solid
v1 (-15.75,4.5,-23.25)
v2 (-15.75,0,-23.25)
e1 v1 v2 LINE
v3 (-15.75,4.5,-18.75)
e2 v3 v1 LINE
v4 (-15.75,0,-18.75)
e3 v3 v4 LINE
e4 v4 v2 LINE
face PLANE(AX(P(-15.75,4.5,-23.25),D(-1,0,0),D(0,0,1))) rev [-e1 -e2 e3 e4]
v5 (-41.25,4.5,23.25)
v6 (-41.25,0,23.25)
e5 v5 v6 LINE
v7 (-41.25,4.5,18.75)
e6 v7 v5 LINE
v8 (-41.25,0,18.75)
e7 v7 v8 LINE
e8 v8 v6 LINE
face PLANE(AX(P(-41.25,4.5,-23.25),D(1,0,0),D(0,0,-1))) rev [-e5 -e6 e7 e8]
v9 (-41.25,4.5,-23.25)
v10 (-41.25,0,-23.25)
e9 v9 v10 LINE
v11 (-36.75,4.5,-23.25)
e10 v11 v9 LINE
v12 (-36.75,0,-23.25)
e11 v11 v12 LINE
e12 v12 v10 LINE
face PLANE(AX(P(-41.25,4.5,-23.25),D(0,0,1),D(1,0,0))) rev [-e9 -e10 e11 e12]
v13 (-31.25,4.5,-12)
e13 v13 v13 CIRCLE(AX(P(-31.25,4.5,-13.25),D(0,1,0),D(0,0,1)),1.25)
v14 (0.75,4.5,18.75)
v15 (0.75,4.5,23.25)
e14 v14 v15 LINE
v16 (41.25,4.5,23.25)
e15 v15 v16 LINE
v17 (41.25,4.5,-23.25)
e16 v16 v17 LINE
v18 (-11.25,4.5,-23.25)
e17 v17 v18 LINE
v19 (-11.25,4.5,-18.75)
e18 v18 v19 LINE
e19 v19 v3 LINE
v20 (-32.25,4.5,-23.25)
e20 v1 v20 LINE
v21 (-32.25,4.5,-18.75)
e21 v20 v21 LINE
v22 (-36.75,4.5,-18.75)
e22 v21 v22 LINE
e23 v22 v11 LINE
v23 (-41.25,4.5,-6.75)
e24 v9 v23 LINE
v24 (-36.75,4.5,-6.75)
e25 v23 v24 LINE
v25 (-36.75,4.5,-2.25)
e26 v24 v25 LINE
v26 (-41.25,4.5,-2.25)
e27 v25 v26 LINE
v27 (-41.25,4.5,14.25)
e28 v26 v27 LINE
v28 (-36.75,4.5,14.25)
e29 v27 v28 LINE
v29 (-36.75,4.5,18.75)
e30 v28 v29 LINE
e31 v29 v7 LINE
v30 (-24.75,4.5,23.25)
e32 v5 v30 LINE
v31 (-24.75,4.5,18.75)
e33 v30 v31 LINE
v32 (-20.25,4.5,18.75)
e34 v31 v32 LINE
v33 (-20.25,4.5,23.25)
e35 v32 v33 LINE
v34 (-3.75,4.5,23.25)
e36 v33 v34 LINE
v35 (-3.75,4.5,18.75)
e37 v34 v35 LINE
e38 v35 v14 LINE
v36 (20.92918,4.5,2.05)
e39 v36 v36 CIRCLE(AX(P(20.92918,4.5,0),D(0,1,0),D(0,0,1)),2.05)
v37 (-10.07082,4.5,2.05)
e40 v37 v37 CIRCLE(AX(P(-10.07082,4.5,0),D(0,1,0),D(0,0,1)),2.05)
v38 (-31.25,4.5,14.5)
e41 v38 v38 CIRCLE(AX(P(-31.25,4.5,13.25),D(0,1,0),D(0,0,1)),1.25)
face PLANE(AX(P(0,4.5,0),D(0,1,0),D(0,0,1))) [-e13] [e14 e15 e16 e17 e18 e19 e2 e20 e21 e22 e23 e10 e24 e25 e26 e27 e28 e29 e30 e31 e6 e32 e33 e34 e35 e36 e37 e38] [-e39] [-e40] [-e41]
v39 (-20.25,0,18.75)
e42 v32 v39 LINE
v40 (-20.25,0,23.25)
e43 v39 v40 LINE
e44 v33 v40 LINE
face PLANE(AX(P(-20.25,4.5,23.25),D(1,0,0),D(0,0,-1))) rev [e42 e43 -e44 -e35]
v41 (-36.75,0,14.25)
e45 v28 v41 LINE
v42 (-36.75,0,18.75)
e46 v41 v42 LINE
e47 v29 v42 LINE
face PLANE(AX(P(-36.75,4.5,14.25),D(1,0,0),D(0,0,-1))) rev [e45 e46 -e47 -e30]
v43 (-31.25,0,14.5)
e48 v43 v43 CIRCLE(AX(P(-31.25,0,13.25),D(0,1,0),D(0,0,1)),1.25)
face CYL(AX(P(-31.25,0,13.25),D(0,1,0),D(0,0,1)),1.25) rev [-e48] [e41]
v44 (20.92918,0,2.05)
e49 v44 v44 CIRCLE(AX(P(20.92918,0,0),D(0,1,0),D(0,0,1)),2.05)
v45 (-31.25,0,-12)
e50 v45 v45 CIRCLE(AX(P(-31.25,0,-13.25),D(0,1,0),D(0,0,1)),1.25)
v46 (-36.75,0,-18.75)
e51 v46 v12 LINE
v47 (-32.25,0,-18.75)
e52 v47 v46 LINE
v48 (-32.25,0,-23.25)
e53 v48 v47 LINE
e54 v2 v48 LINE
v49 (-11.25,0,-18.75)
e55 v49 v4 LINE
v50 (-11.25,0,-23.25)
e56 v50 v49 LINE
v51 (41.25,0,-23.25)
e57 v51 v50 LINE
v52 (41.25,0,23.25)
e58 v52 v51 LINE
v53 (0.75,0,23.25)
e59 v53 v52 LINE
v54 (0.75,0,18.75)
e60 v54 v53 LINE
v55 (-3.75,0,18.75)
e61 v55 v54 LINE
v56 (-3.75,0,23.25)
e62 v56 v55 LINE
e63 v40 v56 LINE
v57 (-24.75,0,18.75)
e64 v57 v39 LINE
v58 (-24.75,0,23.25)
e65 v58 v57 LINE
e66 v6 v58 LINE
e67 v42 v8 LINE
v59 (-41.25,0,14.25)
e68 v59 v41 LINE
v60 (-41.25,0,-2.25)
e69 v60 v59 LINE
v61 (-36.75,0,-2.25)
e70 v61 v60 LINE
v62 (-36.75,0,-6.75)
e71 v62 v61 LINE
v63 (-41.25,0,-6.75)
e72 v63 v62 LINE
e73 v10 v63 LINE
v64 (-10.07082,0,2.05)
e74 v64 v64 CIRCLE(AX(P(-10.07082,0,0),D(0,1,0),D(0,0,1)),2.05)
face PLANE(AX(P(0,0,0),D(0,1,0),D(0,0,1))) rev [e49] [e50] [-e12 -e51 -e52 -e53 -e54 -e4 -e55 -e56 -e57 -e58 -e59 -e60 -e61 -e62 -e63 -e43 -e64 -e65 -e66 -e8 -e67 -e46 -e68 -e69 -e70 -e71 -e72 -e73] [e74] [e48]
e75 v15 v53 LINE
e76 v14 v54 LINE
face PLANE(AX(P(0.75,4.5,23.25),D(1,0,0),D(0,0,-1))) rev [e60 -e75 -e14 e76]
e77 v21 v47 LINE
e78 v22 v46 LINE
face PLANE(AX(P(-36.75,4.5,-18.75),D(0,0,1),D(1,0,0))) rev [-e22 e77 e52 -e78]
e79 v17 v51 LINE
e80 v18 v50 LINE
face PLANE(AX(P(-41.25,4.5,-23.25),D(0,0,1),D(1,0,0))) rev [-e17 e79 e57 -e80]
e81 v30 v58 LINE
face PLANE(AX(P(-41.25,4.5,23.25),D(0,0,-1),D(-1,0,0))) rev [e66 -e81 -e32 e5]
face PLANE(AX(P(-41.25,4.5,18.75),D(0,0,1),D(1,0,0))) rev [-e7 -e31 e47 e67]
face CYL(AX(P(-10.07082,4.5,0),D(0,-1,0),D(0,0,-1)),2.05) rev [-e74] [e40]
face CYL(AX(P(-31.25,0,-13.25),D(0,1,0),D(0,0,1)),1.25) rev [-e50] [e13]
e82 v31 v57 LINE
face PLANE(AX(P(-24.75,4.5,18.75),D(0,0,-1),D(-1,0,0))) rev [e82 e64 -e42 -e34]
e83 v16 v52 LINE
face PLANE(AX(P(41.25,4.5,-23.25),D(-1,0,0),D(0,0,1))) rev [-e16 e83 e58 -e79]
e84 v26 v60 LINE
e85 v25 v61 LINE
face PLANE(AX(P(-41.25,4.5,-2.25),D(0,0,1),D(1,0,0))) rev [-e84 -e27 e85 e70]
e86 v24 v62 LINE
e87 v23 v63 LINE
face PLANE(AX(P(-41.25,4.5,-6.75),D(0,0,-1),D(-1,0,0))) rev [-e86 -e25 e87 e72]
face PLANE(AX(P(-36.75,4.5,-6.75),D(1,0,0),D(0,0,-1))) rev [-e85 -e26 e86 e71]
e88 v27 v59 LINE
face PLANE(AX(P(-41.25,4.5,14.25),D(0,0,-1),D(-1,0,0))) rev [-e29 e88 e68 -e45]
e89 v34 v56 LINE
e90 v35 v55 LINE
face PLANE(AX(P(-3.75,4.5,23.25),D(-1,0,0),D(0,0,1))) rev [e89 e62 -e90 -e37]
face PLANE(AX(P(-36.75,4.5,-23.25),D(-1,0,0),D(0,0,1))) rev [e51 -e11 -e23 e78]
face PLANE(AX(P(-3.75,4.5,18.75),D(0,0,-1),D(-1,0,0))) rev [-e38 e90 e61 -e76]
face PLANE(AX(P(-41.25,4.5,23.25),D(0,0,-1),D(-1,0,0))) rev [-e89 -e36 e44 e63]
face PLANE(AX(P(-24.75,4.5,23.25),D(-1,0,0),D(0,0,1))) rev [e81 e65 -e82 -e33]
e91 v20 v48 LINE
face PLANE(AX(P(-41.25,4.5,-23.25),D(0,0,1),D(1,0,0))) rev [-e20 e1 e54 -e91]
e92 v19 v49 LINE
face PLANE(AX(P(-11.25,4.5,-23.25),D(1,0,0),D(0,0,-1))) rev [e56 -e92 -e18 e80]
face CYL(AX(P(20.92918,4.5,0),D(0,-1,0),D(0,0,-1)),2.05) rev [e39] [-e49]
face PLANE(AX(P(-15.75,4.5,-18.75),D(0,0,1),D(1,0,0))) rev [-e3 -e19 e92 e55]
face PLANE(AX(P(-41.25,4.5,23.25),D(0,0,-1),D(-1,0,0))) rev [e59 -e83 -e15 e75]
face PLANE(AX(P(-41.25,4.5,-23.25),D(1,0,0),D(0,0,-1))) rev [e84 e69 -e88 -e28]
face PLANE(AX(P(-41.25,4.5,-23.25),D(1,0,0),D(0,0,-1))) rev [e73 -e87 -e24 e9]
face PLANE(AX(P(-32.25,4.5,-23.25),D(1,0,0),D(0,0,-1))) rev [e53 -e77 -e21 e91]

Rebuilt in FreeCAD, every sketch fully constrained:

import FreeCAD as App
import Part
import Sketcher

V = App.Vector
Q = App.Units.Quantity

doc = App.newDocument("Part")
body = doc.addObject("PartDesign::Body", "Body")

# Sketch on XZ plane
sketch1 = body.newObject("Sketcher::SketchObject", "Sketch")
sketch1.AttachmentSupport = (doc.getObject("XZ_Plane"), [""])
sketch1.MapMode = "FlatFace"
sketch1.addGeometry([
    Part.LineSegment(V(-41.2, -23.2, 0), V(-41.2, 23.2, 0)),  # 0
    Part.LineSegment(V(-41.2, 23.2, 0), V(41.2, 23.2, 0)),  # 1
    Part.LineSegment(V(41.2, 23.2, 0), V(41.2, -23.2, 0)),  # 2
    Part.LineSegment(V(41.2, -23.2, 0), V(-41.2, -23.2, 0)),  # 3
    Part.Circle(V(-10.1, 0, 0), V(0, 0, 1), 2),  # 4
    Part.Circle(V(20.9, 0, 0), V(0, 0, 1), 2),  # 5
], False)
sketch1.addConstraint([
    Sketcher.Constraint("Coincident", 0, 2, 1, 1),
    Sketcher.Constraint("Coincident", 1, 2, 2, 1),
    Sketcher.Constraint("Coincident", 2, 2, 3, 1),
    Sketcher.Constraint("Coincident", 3, 2, 0, 1),
    Sketcher.Constraint("Vertical", 0),
    Sketcher.Constraint("Horizontal", 1),
    Sketcher.Constraint("Vertical", 2),
    Sketcher.Constraint("Horizontal", 3),
    Sketcher.Constraint("Equal", 4, 5),
    Sketcher.Constraint("Symmetric", 0, 2, 2, 2, -1, 1),
    Sketcher.Constraint("PointOnObject", 4, 3, -1),
    Sketcher.Constraint("PointOnObject", 5, 3, -1),
    Sketcher.Constraint("Diameter", 4, Q("4.1 mm")),
    Sketcher.Constraint("DistanceX", 1, 1, 1, 2, Q("82.5 mm")),
    Sketcher.Constraint("DistanceY", 0, 1, 0, 2, Q("46.5 mm")),
    Sketcher.Constraint("DistanceX", 4, 3, 5, 3, Q("31 mm")),
    Sketcher.Constraint("DistanceX", 4, 3, -1, 1, Q("10.07082 mm")),
])
pad1 = body.newObject("PartDesign::Pad", "Pad")
pad1.Profile = sketch1
pad1.Length = 4.5
pad1.Reversed = True

# Sketch on XZ plane
sketch2 = body.newObject("Sketcher::SketchObject", "Sketch001")
sketch2.AttachmentSupport = (doc.getObject("XZ_Plane"), [""])
sketch2.MapMode = "FlatFace"
sketch2.AttachmentOffset = App.Placement(V(0, 0, -4.5), App.Rotation())
sketch2.addGeometry([
    Part.Circle(V(-31.2, 13.2, 0), V(0, 0, 1), 1.2),
    Part.Circle(V(-31.2, -13.2, 0), V(0, 0, 1), 1.2),
], False)
sketch2.addConstraint([
    Sketcher.Constraint("Equal", 0, 1),
    Sketcher.Constraint("Symmetric", 0, 3, 1, 3, -1),
    Sketcher.Constraint("Diameter", 0, Q("2.5 mm")),
    Sketcher.Constraint("DistanceY", 1, 3, 0, 3, Q("26.5 mm")),
    Sketcher.Constraint("DistanceX", 0, 3, -1, 1, Q("31.25 mm")),
])
pocket1 = body.newObject("PartDesign::Pocket", "Pocket")
pocket1.Profile = sketch2
pocket1.Type = "ThroughAll"
pocket1.Reversed = True

# Sketch on XZ plane
sketch3 = body.newObject("Sketcher::SketchObject", "Sketch002")
sketch3.AttachmentSupport = (doc.getObject("XZ_Plane"), [""])
sketch3.MapMode = "FlatFace"
sketch3.addGeometry([
    Part.LineSegment(V(-32.2, -23.2, 0), V(-32.2, -18.8, 0)),  # 0
    Part.LineSegment(V(-32.2, -18.8, 0), V(-36.8, -18.8, 0)),  # 1
    Part.LineSegment(V(-36.8, -18.8, 0), V(-36.8, -23.2, 0)),  # 2
    Part.LineSegment(V(-36.8, -23.2, 0), V(-32.2, -23.2, 0)),  # 3
    Part.LineSegment(V(-36.8, -6.8, 0), V(-36.8, -2.2, 0)),  # 4
    Part.LineSegment(V(-36.8, -2.2, 0), V(-41.2, -2.2, 0)),  # 5
    Part.LineSegment(V(-41.2, -2.2, 0), V(-41.2, -6.8, 0)),  # 6
    Part.LineSegment(V(-41.2, -6.8, 0), V(-36.8, -6.8, 0)),  # 7
    Part.LineSegment(V(-36.8, 14.2, 0), V(-36.8, 18.8, 0)),  # 8
    Part.LineSegment(V(-36.8, 18.8, 0), V(-41.2, 18.8, 0)),  # 9
    Part.LineSegment(V(-41.2, 18.8, 0), V(-41.2, 14.2, 0)),  # 10
    Part.LineSegment(V(-41.2, 14.2, 0), V(-36.8, 14.2, 0)),  # 11
    Part.LineSegment(V(-20.2, 18.8, 0), V(-20.2, 23.2, 0)),  # 12
    Part.LineSegment(V(-20.2, 23.2, 0), V(-24.8, 23.2, 0)),  # 13
    Part.LineSegment(V(-24.8, 23.2, 0), V(-24.8, 18.8, 0)),  # 14
    Part.LineSegment(V(-24.8, 18.8, 0), V(-20.2, 18.8, 0)),  # 15
    Part.LineSegment(V(0.8, 18.8, 0), V(0.8, 23.2, 0)),  # 16
    Part.LineSegment(V(0.8, 23.2, 0), V(-3.8, 23.2, 0)),  # 17
    Part.LineSegment(V(-3.8, 23.2, 0), V(-3.8, 18.8, 0)),  # 18
    Part.LineSegment(V(-3.8, 18.8, 0), V(0.8, 18.8, 0)),  # 19
    Part.LineSegment(V(-11.2, -23.2, 0), V(-11.2, -18.8, 0)),  # 20
    Part.LineSegment(V(-11.2, -18.8, 0), V(-15.8, -18.8, 0)),  # 21
    Part.LineSegment(V(-15.8, -18.8, 0), V(-15.8, -23.2, 0)),  # 22
    Part.LineSegment(V(-15.8, -23.2, 0), V(-11.2, -23.2, 0)),  # 23
], False)
sketch3.addConstraint([
    Sketcher.Constraint("Coincident", 0, 2, 1, 1),
    Sketcher.Constraint("Coincident", 1, 2, 2, 1),
    Sketcher.Constraint("Coincident", 2, 2, 3, 1),
    Sketcher.Constraint("Coincident", 3, 2, 0, 1),
    Sketcher.Constraint("Coincident", 4, 2, 5, 1),
    Sketcher.Constraint("Coincident", 5, 2, 6, 1),
    Sketcher.Constraint("Coincident", 6, 2, 7, 1),
    Sketcher.Constraint("Coincident", 7, 2, 4, 1),
    Sketcher.Constraint("Coincident", 8, 2, 9, 1),
    Sketcher.Constraint("Coincident", 9, 2, 10, 1),
    Sketcher.Constraint("Coincident", 10, 2, 11, 1),
    Sketcher.Constraint("Coincident", 11, 2, 8, 1),
    Sketcher.Constraint("Coincident", 12, 2, 13, 1),
    Sketcher.Constraint("Coincident", 13, 2, 14, 1),
    Sketcher.Constraint("Coincident", 14, 2, 15, 1),
    Sketcher.Constraint("Coincident", 15, 2, 12, 1),
    Sketcher.Constraint("Coincident", 16, 2, 17, 1),
    Sketcher.Constraint("Coincident", 17, 2, 18, 1),
    Sketcher.Constraint("Coincident", 18, 2, 19, 1),
    Sketcher.Constraint("Coincident", 19, 2, 16, 1),
    Sketcher.Constraint("Coincident", 20, 2, 21, 1),
    Sketcher.Constraint("Coincident", 21, 2, 22, 1),
    Sketcher.Constraint("Coincident", 22, 2, 23, 1),
    Sketcher.Constraint("Coincident", 23, 2, 20, 1),
    Sketcher.Constraint("Vertical", 0),
    Sketcher.Constraint("Horizontal", 1),
    Sketcher.Constraint("Vertical", 2),
    Sketcher.Constraint("Horizontal", 3),
    Sketcher.Constraint("Vertical", 4),
    Sketcher.Constraint("Horizontal", 5),
    Sketcher.Constraint("Vertical", 6),
    Sketcher.Constraint("Horizontal", 7),
    Sketcher.Constraint("Vertical", 8),
    Sketcher.Constraint("Horizontal", 9),
    Sketcher.Constraint("Vertical", 10),
    Sketcher.Constraint("Horizontal", 11),
    Sketcher.Constraint("Vertical", 12),
    Sketcher.Constraint("Horizontal", 13),
    Sketcher.Constraint("Vertical", 14),
    Sketcher.Constraint("Horizontal", 15),
    Sketcher.Constraint("Vertical", 16),
    Sketcher.Constraint("Horizontal", 17),
    Sketcher.Constraint("Vertical", 18),
    Sketcher.Constraint("Horizontal", 19),
    Sketcher.Constraint("Vertical", 20),
    Sketcher.Constraint("Horizontal", 21),
    Sketcher.Constraint("Vertical", 22),
    Sketcher.Constraint("Horizontal", 23),
    Sketcher.Constraint("Symmetric", 1, 2, 8, 2, -1),
    Sketcher.Constraint("Horizontal", 9, 2, 14, 2),
    Sketcher.Constraint("Horizontal", 13, 2, 16, 2),
    Sketcher.Constraint("Horizontal", 15, 2, 18, 2),
    Sketcher.Constraint("Horizontal", 1, 2, 20, 2),
    Sketcher.Constraint("Horizontal", 3, 2, 22, 2),
    Sketcher.Constraint("Vertical", 2, 2, 4, 2),
    Sketcher.Constraint("Vertical", 6, 2, 9, 2),
    Sketcher.Constraint("Equal", 3, 5),
    Sketcher.Constraint("Equal", 11, 13),
    Sketcher.Constraint("Equal", 15, 17),
    Sketcher.Constraint("Equal", 19, 21),
    Sketcher.Constraint("Equal", 23, 0),
    Sketcher.Constraint("Equal", 2, 4),
    Sketcher.Constraint("Equal", 6, 8),
    Sketcher.Constraint("Equal", 10, 12),
    Sketcher.Constraint("DistanceX", 1, 2, 1, 1, Q("4.5 mm")),
    Sketcher.Constraint("DistanceY", 2, 2, 4, 2, Q("21 mm")),
    Sketcher.Constraint("DistanceY", 4, 2, 8, 2, Q("21 mm")),
    Sketcher.Constraint("DistanceX", 9, 2, 12, 2, Q("21 mm")),
    Sketcher.Constraint("DistanceX", 12, 2, 16, 2, Q("21 mm")),
    Sketcher.Constraint("DistanceX", 0, 2, 20, 2, Q("21 mm")),
    Sketcher.Constraint("DistanceX", 0, 2, -1, 1, Q("32.25 mm")),
])
pocket2 = body.newObject("PartDesign::Pocket", "Pocket001")
pocket2.Profile = sketch3
pocket2.Type = "ThroughAll"

doc.recompute()
